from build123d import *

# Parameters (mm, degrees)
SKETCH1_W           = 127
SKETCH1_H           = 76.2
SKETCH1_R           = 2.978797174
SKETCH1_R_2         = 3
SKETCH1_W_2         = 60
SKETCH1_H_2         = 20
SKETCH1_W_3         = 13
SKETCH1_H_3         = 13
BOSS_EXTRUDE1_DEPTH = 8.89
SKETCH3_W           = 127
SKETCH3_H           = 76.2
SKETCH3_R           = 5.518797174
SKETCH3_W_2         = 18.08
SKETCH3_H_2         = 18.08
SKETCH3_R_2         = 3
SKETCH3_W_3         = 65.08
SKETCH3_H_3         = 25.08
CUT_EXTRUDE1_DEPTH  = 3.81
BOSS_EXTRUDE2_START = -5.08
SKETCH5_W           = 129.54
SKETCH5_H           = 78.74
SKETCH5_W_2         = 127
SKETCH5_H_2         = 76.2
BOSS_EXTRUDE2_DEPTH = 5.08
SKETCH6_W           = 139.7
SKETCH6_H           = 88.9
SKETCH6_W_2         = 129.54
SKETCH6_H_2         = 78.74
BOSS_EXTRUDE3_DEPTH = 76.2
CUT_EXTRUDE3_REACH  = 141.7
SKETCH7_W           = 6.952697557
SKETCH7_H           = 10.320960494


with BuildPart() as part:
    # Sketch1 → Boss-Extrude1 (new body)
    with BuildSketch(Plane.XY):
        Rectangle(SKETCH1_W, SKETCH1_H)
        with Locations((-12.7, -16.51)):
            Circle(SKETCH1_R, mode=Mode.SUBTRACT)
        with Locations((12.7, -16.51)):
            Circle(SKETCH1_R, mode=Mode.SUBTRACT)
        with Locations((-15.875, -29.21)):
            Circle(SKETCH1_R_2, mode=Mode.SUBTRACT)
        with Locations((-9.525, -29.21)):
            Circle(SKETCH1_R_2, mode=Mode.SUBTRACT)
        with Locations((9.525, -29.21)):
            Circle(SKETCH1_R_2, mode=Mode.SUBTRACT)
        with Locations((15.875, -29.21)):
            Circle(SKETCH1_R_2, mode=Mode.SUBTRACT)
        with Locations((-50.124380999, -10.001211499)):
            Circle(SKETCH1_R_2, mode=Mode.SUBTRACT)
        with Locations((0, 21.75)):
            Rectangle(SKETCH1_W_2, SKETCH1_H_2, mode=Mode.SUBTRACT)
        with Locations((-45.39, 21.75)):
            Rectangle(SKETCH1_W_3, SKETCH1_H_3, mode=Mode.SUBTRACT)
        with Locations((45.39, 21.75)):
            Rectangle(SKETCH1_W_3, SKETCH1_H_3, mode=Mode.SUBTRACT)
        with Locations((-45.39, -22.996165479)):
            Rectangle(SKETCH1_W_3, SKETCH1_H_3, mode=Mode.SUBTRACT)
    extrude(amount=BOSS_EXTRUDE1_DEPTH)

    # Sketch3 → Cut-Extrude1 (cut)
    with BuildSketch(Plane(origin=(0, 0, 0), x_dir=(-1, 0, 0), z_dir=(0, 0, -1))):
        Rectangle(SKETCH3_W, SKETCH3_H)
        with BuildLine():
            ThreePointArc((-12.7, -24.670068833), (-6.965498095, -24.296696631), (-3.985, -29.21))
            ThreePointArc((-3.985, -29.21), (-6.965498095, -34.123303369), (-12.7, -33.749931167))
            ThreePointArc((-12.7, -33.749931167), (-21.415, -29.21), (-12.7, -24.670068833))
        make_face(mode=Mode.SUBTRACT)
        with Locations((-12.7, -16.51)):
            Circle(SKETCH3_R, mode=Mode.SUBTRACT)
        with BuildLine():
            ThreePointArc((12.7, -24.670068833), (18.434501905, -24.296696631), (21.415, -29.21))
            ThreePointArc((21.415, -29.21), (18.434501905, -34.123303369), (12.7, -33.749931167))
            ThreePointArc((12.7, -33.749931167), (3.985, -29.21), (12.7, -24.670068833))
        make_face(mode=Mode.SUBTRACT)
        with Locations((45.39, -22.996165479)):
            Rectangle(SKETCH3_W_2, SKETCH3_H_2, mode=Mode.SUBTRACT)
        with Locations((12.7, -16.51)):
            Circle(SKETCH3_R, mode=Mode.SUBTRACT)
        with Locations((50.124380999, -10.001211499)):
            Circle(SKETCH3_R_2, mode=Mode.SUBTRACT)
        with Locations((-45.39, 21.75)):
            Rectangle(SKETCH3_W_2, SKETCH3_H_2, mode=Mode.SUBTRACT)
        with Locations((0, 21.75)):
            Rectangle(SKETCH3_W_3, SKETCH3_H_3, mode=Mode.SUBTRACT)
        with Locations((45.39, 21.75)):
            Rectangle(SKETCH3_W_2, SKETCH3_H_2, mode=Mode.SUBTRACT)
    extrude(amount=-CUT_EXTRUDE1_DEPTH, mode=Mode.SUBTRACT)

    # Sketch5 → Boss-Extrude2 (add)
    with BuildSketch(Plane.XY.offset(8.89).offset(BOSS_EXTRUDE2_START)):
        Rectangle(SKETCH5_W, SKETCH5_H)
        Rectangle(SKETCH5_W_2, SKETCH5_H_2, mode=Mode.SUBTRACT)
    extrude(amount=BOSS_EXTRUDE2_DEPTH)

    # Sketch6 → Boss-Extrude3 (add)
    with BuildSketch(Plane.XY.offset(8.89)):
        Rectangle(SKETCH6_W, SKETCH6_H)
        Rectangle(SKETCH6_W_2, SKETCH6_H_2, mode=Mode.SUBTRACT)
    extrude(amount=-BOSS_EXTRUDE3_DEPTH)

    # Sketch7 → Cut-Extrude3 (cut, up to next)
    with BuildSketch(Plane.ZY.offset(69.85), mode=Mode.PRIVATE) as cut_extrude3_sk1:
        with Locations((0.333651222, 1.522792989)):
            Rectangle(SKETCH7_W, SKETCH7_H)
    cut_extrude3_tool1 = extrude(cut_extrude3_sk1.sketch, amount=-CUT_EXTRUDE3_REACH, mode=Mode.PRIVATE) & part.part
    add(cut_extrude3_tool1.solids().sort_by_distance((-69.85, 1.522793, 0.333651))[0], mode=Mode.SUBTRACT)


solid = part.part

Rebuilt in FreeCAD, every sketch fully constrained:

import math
import FreeCAD as App
import Part
import Sketcher

V = App.Vector
Q = App.Units.Quantity

doc = App.newDocument("Part")
body = doc.addObject("PartDesign::Body", "Body")

sketch1 = doc.addObject("Sketcher::SketchObject", "Sketch")
body.addObject(sketch1)
sketch1.AttachmentSupport = (doc.XY_Plane, [""])
sketch1.MapMode = "FlatFace"
sketch1.addGeometry(Part.LineSegment(V(-63.5, 38.1, 0), V(-63.5, -38.1, 0)), False)
sketch1.addGeometry(Part.LineSegment(V(-63.5, -38.1, 0), V(63.5, -38.1, 0)), False)
sketch1.addGeometry(Part.LineSegment(V(63.5, -38.1, 0), V(63.5, 38.1, 0)), False)
sketch1.addGeometry(Part.LineSegment(V(63.5, 38.1, 0), V(-63.5, 38.1, 0)), False)
sketch1.addGeometry(Part.LineSegment(V(-38.89, -29.496165, 0), V(-51.89, -29.496165, 0)), False)
sketch1.addGeometry(Part.LineSegment(V(-51.89, -29.496165, 0), V(-51.89, -16.496165, 0)), False)
sketch1.addGeometry(Part.LineSegment(V(-51.89, -16.496165, 0), V(-38.89, -16.496165, 0)), False)
sketch1.addGeometry(Part.LineSegment(V(-38.89, -16.496165, 0), V(-38.89, -29.496165, 0)), False)
sketch1.addGeometry(Part.Circle(V(-15.875, -29.21, 0), V(0, 0, 1), 3), False)
sketch1.addGeometry(Part.Circle(V(-9.525, -29.21, 0), V(0, 0, 1), 3), False)
sketch1.addGeometry(Part.Circle(V(-12.7, -16.51, 0), V(0, 0, 1), 2.978797), False)
sketch1.addGeometry(Part.Circle(V(-50.124381, -10.001211, 0), V(0, 0, 1), 3), False)
sketch1.addGeometry(Part.Circle(V(9.525, -29.21, 0), V(0, 0, 1), 3), False)
sketch1.addGeometry(Part.Circle(V(15.875, -29.21, 0), V(0, 0, 1), 3), False)
sketch1.addGeometry(Part.Circle(V(12.7, -16.51, 0), V(0, 0, 1), 2.978797), False)
sketch1.addGeometry(Part.LineSegment(V(-38.89, 15.25, 0), V(-51.89, 15.25, 0)), False)
sketch1.addGeometry(Part.LineSegment(V(-51.89, 15.25, 0), V(-51.89, 28.25, 0)), False)
sketch1.addGeometry(Part.LineSegment(V(-51.89, 28.25, 0), V(-38.89, 28.25, 0)), False)
sketch1.addGeometry(Part.LineSegment(V(-38.89, 28.25, 0), V(-38.89, 15.25, 0)), False)
sketch1.addGeometry(Part.LineSegment(V(30, 11.75, 0), V(-30, 11.75, 0)), False)
sketch1.addGeometry(Part.LineSegment(V(-30, 11.75, 0), V(-30, 31.75, 0)), False)
sketch1.addGeometry(Part.LineSegment(V(-30, 31.75, 0), V(30, 31.75, 0)), False)
sketch1.addGeometry(Part.LineSegment(V(30, 31.75, 0), V(30, 11.75, 0)), False)
sketch1.addGeometry(Part.LineSegment(V(51.89, 15.25, 0), V(38.89, 15.25, 0)), False)
sketch1.addGeometry(Part.LineSegment(V(38.89, 15.25, 0), V(38.89, 28.25, 0)), False)
sketch1.addGeometry(Part.LineSegment(V(38.89, 28.25, 0), V(51.89, 28.25, 0)), False)
sketch1.addGeometry(Part.LineSegment(V(51.89, 28.25, 0), V(51.89, 15.25, 0)), False)
sketch1.addConstraint(Sketcher.Constraint("Coincident", 0, 2, 1, 1))
sketch1.addConstraint(Sketcher.Constraint("Coincident", 1, 2, 2, 1))
sketch1.addConstraint(Sketcher.Constraint("Coincident", 2, 2, 3, 1))
sketch1.addConstraint(Sketcher.Constraint("Coincident", 3, 2, 0, 1))
sketch1.addConstraint(Sketcher.Constraint("Coincident", 4, 2, 5, 1))
sketch1.addConstraint(Sketcher.Constraint("Coincident", 5, 2, 6, 1))
sketch1.addConstraint(Sketcher.Constraint("Coincident", 6, 2, 7, 1))
sketch1.addConstraint(Sketcher.Constraint("Coincident", 7, 2, 4, 1))
sketch1.addConstraint(Sketcher.Constraint("Coincident", 15, 2, 16, 1))
sketch1.addConstraint(Sketcher.Constraint("Coincident", 16, 2, 17, 1))
sketch1.addConstraint(Sketcher.Constraint("Coincident", 17, 2, 18, 1))
sketch1.addConstraint(Sketcher.Constraint("Coincident", 18, 2, 15, 1))
sketch1.addConstraint(Sketcher.Constraint("Coincident", 19, 2, 20, 1))
sketch1.addConstraint(Sketcher.Constraint("Coincident", 20, 2, 21, 1))
sketch1.addConstraint(Sketcher.Constraint("Coincident", 21, 2, 22, 1))
sketch1.addConstraint(Sketcher.Constraint("Coincident", 22, 2, 19, 1))
sketch1.addConstraint(Sketcher.Constraint("Coincident", 23, 2, 24, 1))
sketch1.addConstraint(Sketcher.Constraint("Coincident", 24, 2, 25, 1))
sketch1.addConstraint(Sketcher.Constraint("Coincident", 25, 2, 26, 1))
sketch1.addConstraint(Sketcher.Constraint("Coincident", 26, 2, 23, 1))
sketch1.addConstraint(Sketcher.Constraint("Vertical", 0))
sketch1.addConstraint(Sketcher.Constraint("Horizontal", 1))
sketch1.addConstraint(Sketcher.Constraint("Vertical", 2))
sketch1.addConstraint(Sketcher.Constraint("Horizontal", 3))
sketch1.addConstraint(Sketcher.Constraint("Horizontal", 4))
sketch1.addConstraint(Sketcher.Constraint("Vertical", 5))
sketch1.addConstraint(Sketcher.Constraint("Horizontal", 6))
sketch1.addConstraint(Sketcher.Constraint("Vertical", 7))
sketch1.addConstraint(Sketcher.Constraint("Horizontal", 15))
sketch1.addConstraint(Sketcher.Constraint("Vertical", 16))
sketch1.addConstraint(Sketcher.Constraint("Horizontal", 17))
sketch1.addConstraint(Sketcher.Constraint("Vertical", 18))
sketch1.addConstraint(Sketcher.Constraint("Horizontal", 19))
sketch1.addConstraint(Sketcher.Constraint("Vertical", 20))
sketch1.addConstraint(Sketcher.Constraint("Horizontal", 21))
sketch1.addConstraint(Sketcher.Constraint("Vertical", 22))
sketch1.addConstraint(Sketcher.Constraint("Horizontal", 23))
sketch1.addConstraint(Sketcher.Constraint("Vertical", 24))
sketch1.addConstraint(Sketcher.Constraint("Horizontal", 25))
sketch1.addConstraint(Sketcher.Constraint("Vertical", 26))
sketch1.addConstraint(Sketcher.Constraint("Equal", 8, 9))
sketch1.addConstraint(Sketcher.Constraint("Equal", 9, 11))
sketch1.addConstraint(Sketcher.Constraint("Equal", 11, 12))
sketch1.addConstraint(Sketcher.Constraint("Equal", 12, 13))
sketch1.addConstraint(Sketcher.Constraint("Equal", 10, 14))
sketch1.addConstraint(Sketcher.Constraint("Symmetric", 0, 2, 2, 2, -1, 1))
sketch1.addConstraint(Sketcher.Constraint("Symmetric", 9, 3, 12, 3, -2))
sketch1.addConstraint(Sketcher.Constraint("Symmetric", 8, 3, 13, 3, -2))
sketch1.addConstraint(Sketcher.Constraint("Symmetric", 10, 3, 14, 3, -2))
sketch1.addConstraint(Sketcher.Constraint("Symmetric", 18, 2, 23, 2, -2))
sketch1.addConstraint(Sketcher.Constraint("Symmetric", 16, 2, 25, 2, -2))
sketch1.addConstraint(Sketcher.Constraint("Horizontal", 8, 3, 9, 3))
sketch1.addConstraint(Sketcher.Constraint("Vertical", 5, 2, 15, 2))
sketch1.addConstraint(Sketcher.Constraint("Vertical", 7, 2, 17, 2))
sketch1.addConstraint(Sketcher.Constraint("Equal", 25, 5))
sketch1.addConstraint(Sketcher.Constraint("Equal", 7, 16))
sketch1.addConstraint(Sketcher.Constraint("DistanceX", 1, 1, 1, 2, Q("5 in")))
sketch1.addConstraint(Sketcher.Constraint("DistanceY", 0, 2, 0, 1, Q("3 in")))
sketch1.addConstraint(Sketcher.Constraint("DistanceX", 8, 3, 12, 3, Q("1 in")))
sketch1.addConstraint(Sketcher.Constraint("DistanceX", 10, 3, 14, 3, Q("1 in")))
sketch1.addConstraint(Sketcher.Constraint("DistanceY", 8, 3, 10, 3, Q("0.5 in")))
sketch1.addConstraint(Sketcher.Constraint("DistanceY", 14, 3, 21, 2, Q("1.9 in")))
sketch1.addConstraint(Sketcher.Constraint("Diameter", 8, 6.0))
sketch1.addConstraint(Sketcher.Constraint("DistanceY", 8, 3, -1, 1, Q("1.15 in")))
sketch1.addConstraint(Sketcher.Constraint("DistanceX", 8, 3, 9, 3, Q("0.25 in")))
sketch1.addConstraint(Sketcher.Constraint("DistanceX", 18, 2, 19, 2, Q("0.35 in")))
sketch1.addConstraint(Sketcher.Constraint("DistanceX", 22, 2, 23, 2, Q("0.35 in")))
sketch1.addConstraint(Sketcher.Constraint("Diameter", 10, 5.957594))
sketch1.addConstraint(Sketcher.Constraint("DistanceX", 4, 2, 4, 1, 13.0))
sketch1.addConstraint(Sketcher.Constraint("DistanceX", 19, 2, 19, 1, 60.0))
sketch1.addConstraint(Sketcher.Constraint("DistanceY", 20, 1, 20, 2, 20.0))
sketch1.addConstraint(Sketcher.Constraint("DistanceY", -1, 1, 15, 2, 15.25))
sketch1.addConstraint(Sketcher.Constraint("DistanceX", 11, 3, -1, 1, 50.124381))
sketch1.addConstraint(Sketcher.Constraint("DistanceY", 11, 3, -1, 1, 10.001211))
sketch1.addConstraint(Sketcher.Constraint("DistanceY", 4, 2, -1, 1, 29.496165))
pad1 = doc.addObject("PartDesign::Pad", "Pad")
body.addObject(pad1)
pad1.Profile = sketch1
pad1.Length = Q("0.35 in")

sketch2 = doc.addObject("Sketcher::SketchObject", "Sketch001")
body.addObject(sketch2)
sketch2.AttachmentSupport = (doc.XY_Plane, [""])
sketch2.MapMode = "FlatFace"
sketch2.addGeometry(Part.LineSegment(V(63.5, 38.1, 0), V(63.5, -38.1, 0)), False)
sketch2.addGeometry(Part.LineSegment(V(63.5, -38.1, 0), V(-63.5, -38.1, 0)), False)
sketch2.addGeometry(Part.LineSegment(V(-63.5, -38.1, 0), V(-63.5, 38.1, 0)), False)
sketch2.addGeometry(Part.LineSegment(V(-63.5, 38.1, 0), V(63.5, 38.1, 0)), False)
sketch2.addGeometry(Part.ArcOfCircle(Part.Circle(V(15.875, -29.21, 0), V(0, 0, 1), 5.54), math.radians(-124.96701), math.radians(124.96701)), False)
sketch2.addGeometry(Part.ArcOfCircle(Part.Circle(V(9.525, -29.21, 0), V(0, 0, 1), 5.54), math.radians(55.03299), math.radians(180)), False)
sketch2.addGeometry(Part.ArcOfCircle(Part.Circle(V(9.525, -29.21, 0), V(0, 0, 1), 5.54), math.radians(180), math.radians(304.96701)), False)
sketch2.addGeometry(Part.Circle(V(12.7, -16.51, 0), V(0, 0, 1), 5.518797), False)
sketch2.addGeometry(Part.ArcOfCircle(Part.Circle(V(-9.525, -29.21, 0), V(0, 0, 1), 5.54), math.radians(-124.96701), math.radians(124.96701)), False)
sketch2.addGeometry(Part.ArcOfCircle(Part.Circle(V(-15.875, -29.21, 0), V(0, 0, 1), 5.54), math.radians(55.03299), math.radians(180)), False)
sketch2.addGeometry(Part.ArcOfCircle(Part.Circle(V(-15.875, -29.21, 0), V(0, 0, 1), 5.54), math.radians(180), math.radians(304.96701)), False)
sketch2.addGeometry(Part.LineSegment(V(-54.43, -32.036165, 0), V(-36.35, -32.036165, 0)), False)
sketch2.addGeometry(Part.LineSegment(V(-36.35, -32.036165, 0), V(-36.35, -13.956165, 0)), False)
sketch2.addGeometry(Part.LineSegment(V(-36.35, -13.956165, 0), V(-54.43, -13.956165, 0)), False)
sketch2.addGeometry(Part.LineSegment(V(-54.43, -13.956165, 0), V(-54.43, -32.036165, 0)), False)
sketch2.addGeometry(Part.Circle(V(-12.7, -16.51, 0), V(0, 0, 1), 5.518797), False)
sketch2.addGeometry(Part.Circle(V(-50.124381, -10.001211, 0), V(0, 0, 1), 3), False)
sketch2.addGeometry(Part.LineSegment(V(36.35, 12.71, 0), V(54.43, 12.71, 0)), False)
sketch2.addGeometry(Part.LineSegment(V(54.43, 12.71, 0), V(54.43, 30.79, 0)), False)
sketch2.addGeometry(Part.LineSegment(V(54.43, 30.79, 0), V(36.35, 30.79, 0)), False)
sketch2.addGeometry(Part.LineSegment(V(36.35, 30.79, 0), V(36.35, 12.71, 0)), False)
sketch2.addGeometry(Part.LineSegment(V(-32.54, 9.21, 0), V(32.54, 9.21, 0)), False)
sketch2.addGeometry(Part.LineSegment(V(32.54, 9.21, 0), V(32.54, 34.29, 0)), False)
sketch2.addGeometry(Part.LineSegment(V(32.54, 34.29, 0), V(-32.54, 34.29, 0)), False)
sketch2.addGeometry(Part.LineSegment(V(-32.54, 34.29, 0), V(-32.54, 9.21, 0)), False)
sketch2.addGeometry(Part.LineSegment(V(-54.43, 12.71, 0), V(-36.35, 12.71, 0)), False)
sketch2.addGeometry(Part.LineSegment(V(-36.35, 12.71, 0), V(-36.35, 30.79, 0)), False)
sketch2.addGeometry(Part.LineSegment(V(-36.35, 30.79, 0), V(-54.43, 30.79, 0)), False)
sketch2.addGeometry(Part.LineSegment(V(-54.43, 30.79, 0), V(-54.43, 12.71, 0)), False)
sketch2.addConstraint(Sketcher.Constraint("Coincident", 0, 2, 1, 1))
sketch2.addConstraint(Sketcher.Constraint("Coincident", 1, 2, 2, 1))
sketch2.addConstraint(Sketcher.Constraint("Coincident", 2, 2, 3, 1))
sketch2.addConstraint(Sketcher.Constraint("Coincident", 3, 2, 0, 1))
sketch2.addConstraint(Sketcher.Constraint("Coincident", 4, 2, 5, 1))
sketch2.addConstraint(Sketcher.Constraint("Tangent", 5, 2, 6, 1))
sketch2.addConstraint(Sketcher.Constraint("Coincident", 6, 2, 4, 1))
sketch2.addConstraint(Sketcher.Constraint("Coincident", 8, 2, 9, 1))
sketch2.addConstraint(Sketcher.Constraint("Tangent", 9, 2, 10, 1))
sketch2.addConstraint(Sketcher.Constraint("Coincident", 10, 2, 8, 1))
sketch2.addConstraint(Sketcher.Constraint("Coincident", 11, 2, 12, 1))
sketch2.addConstraint(Sketcher.Constraint("Coincident", 12, 2, 13, 1))
sketch2.addConstraint(Sketcher.Constraint("Coincident", 13, 2, 14, 1))
sketch2.addConstraint(Sketcher.Constraint("Coincident", 14, 2, 11, 1))
sketch2.addConstraint(Sketcher.Constraint("Coincident", 17, 2, 18, 1))
sketch2.addConstraint(Sketcher.Constraint("Coincident", 18, 2, 19, 1))
sketch2.addConstraint(Sketcher.Constraint("Coincident", 19, 2, 20, 1))
sketch2.addConstraint(Sketcher.Constraint("Coincident", 20, 2, 17, 1))
sketch2.addConstraint(Sketcher.Constraint("Coincident", 21, 2, 22, 1))
sketch2.addConstraint(Sketcher.Constraint("Coincident", 22, 2, 23, 1))
sketch2.addConstraint(Sketcher.Constraint("Coincident", 23, 2, 24, 1))
sketch2.addConstraint(Sketcher.Constraint("Coincident", 24, 2, 21, 1))
sketch2.addConstraint(Sketcher.Constraint("Coincident", 25, 2, 26, 1))
sketch2.addConstraint(Sketcher.Constraint("Coincident", 26, 2, 27, 1))
sketch2.addConstraint(Sketcher.Constraint("Coincident", 27, 2, 28, 1))
sketch2.addConstraint(Sketcher.Constraint("Coincident", 28, 2, 25, 1))
sketch2.addConstraint(Sketcher.Constraint("Vertical", 0))
sketch2.addConstraint(Sketcher.Constraint("Horizontal", 1))
sketch2.addConstraint(Sketcher.Constraint("Vertical", 2))
sketch2.addConstraint(Sketcher.Constraint("Horizontal", 3))
sketch2.addConstraint(Sketcher.Constraint("Horizontal", 11))
sketch2.addConstraint(Sketcher.Constraint("Vertical", 12))
sketch2.addConstraint(Sketcher.Constraint("Horizontal", 13))
sketch2.addConstraint(Sketcher.Constraint("Vertical", 14))
sketch2.addConstraint(Sketcher.Constraint("Horizontal", 17))
sketch2.addConstraint(Sketcher.Constraint("Vertical", 18))
sketch2.addConstraint(Sketcher.Constraint("Horizontal", 19))
sketch2.addConstraint(Sketcher.Constraint("Vertical", 20))
sketch2.addConstraint(Sketcher.Constraint("Horizontal", 21))
sketch2.addConstraint(Sketcher.Constraint("Vertical", 22))
sketch2.addConstraint(Sketcher.Constraint("Horizontal", 23))
sketch2.addConstraint(Sketcher.Constraint("Vertical", 24))
sketch2.addConstraint(Sketcher.Constraint("Horizontal", 25))
sketch2.addConstraint(Sketcher.Constraint("Vertical", 26))
sketch2.addConstraint(Sketcher.Constraint("Horizontal", 27))
sketch2.addConstraint(Sketcher.Constraint("Vertical", 28))
sketch2.addConstraint(Sketcher.Constraint("Equal", 4, 5))
sketch2.addConstraint(Sketcher.Constraint("Equal", 5, 6))
sketch2.addConstraint(Sketcher.Constraint("Equal", 6, 8))
sketch2.addConstraint(Sketcher.Constraint("Equal", 8, 9))
sketch2.addConstraint(Sketcher.Constraint("Equal", 9, 10))
sketch2.addConstraint(Sketcher.Constraint("Equal", 7, 15))
sketch2.addConstraint(Sketcher.Constraint("Symmetric", 0, 2, 2, 2, -1, 1))
sketch2.addConstraint(Sketcher.Constraint("Symmetric", 5, 3, 8, 3, -2))
sketch2.addConstraint(Sketcher.Constraint("Symmetric", 4, 3, 9, 3, -2))
sketch2.addConstraint(Sketcher.Constraint("Symmetric", 7, 3, 15, 3, -2))
sketch2.addConstraint(Sketcher.Constraint("Symmetric", 20, 2, 25, 2, -2))
sketch2.addConstraint(Sketcher.Constraint("Symmetric", 18, 2, 27, 2, -2))
sketch2.addConstraint(Sketcher.Constraint("Horizontal", 4, 3, 5, 3))
sketch2.addConstraint(Sketcher.Constraint("Horizontal", 10, 3, 5, 2))
sketch2.addConstraint(Sketcher.Constraint("Horizontal", 5, 2, 9, 2))
sketch2.addConstraint(Sketcher.Constraint("Vertical", 7, 3, 4, 2))
sketch2.addConstraint(Sketcher.Constraint("Vertical", 12, 2, 25, 2))
sketch2.addConstraint(Sketcher.Constraint("Vertical", 14, 2, 27, 2))
sketch2.addConstraint(Sketcher.Constraint("Equal", 27, 12))
sketch2.addConstraint(Sketcher.Constraint("Equal", 14, 18))
sketch2.addConstraint(Sketcher.Constraint("DistanceX", 1, 2, 1, 1, Q("5 in")))
sketch2.addConstraint(Sketcher.Constraint("DistanceY", 0, 2, 0, 1, Q("3 in")))
sketch2.addConstraint(Sketcher.Constraint("DistanceX", 8, 3, 4, 3, Q("1 in")))
sketch2.addConstraint(Sketcher.Constraint("DistanceY", 15, 3, 23, 2, Q("2 in")))
sketch2.addConstraint(Sketcher.Constraint("DistanceY", 4, 3, 7, 3, Q("0.5 in")))
sketch2.addConstraint(Sketcher.Constraint("Diameter", 16, 6.0))
sketch2.addConstraint(Sketcher.Constraint("DistanceY", 4, 3, -1, 1, Q("1.15 in")))
sketch2.addConstraint(Sketcher.Constraint("Radius", 4, 5.54))
sketch2.addConstraint(Sketcher.Constraint("DistanceX", 5, 3, 4, 3, Q("0.25 in")))
sketch2.addConstraint(Sketcher.Constraint("DistanceX", 21, 2, 20, 2, Q("0.15 in")))
sketch2.addConstraint(Sketcher.Constraint("DistanceX", 12, 2, 23, 2, Q("0.15 in")))
sketch2.addConstraint(Sketcher.Constraint("Diameter", 7, 11.037594))
sketch2.addConstraint(Sketcher.Constraint("DistanceX", 11, 1, 11, 2, 18.08))
sketch2.addConstraint(Sketcher.Constraint("DistanceX", 21, 1, 21, 2, 65.08))
sketch2.addConstraint(Sketcher.Constraint("DistanceY", 22, 1, 22, 2, 25.08))
sketch2.addConstraint(Sketcher.Constraint("DistanceY", -1, 1, 17, 2, 12.71))
sketch2.addConstraint(Sketcher.Constraint("DistanceX", 16, 3, -1, 1, 50.124381))
sketch2.addConstraint(Sketcher.Constraint("DistanceY", 16, 3, -1, 1, 10.001211))
sketch2.addConstraint(Sketcher.Constraint("DistanceY", 11, 2, -1, 1, 32.036165))
pocket1 = doc.addObject("PartDesign::Pocket", "Pocket")
body.addObject(pocket1)
pocket1.Profile = sketch2
pocket1.Length = Q("0.15 in")
pocket1.Reversed = True

sketch3 = doc.addObject("Sketcher::SketchObject", "Sketch002")
body.addObject(sketch3)
sketch3.AttachmentSupport = (doc.XY_Plane, [""])
sketch3.MapMode = "FlatFace"
sketch3.AttachmentOffset = App.Placement(V(0, 0, 0.15 * 25.4), App.Rotation())
sketch3.addGeometry(Part.LineSegment(V(-64.77, 39.37, 0), V(-64.77, -39.37, 0)), False)
sketch3.addGeometry(Part.LineSegment(V(-64.77, -39.37, 0), V(64.77, -39.37, 0)), False)
sketch3.addGeometry(Part.LineSegment(V(64.77, -39.37, 0), V(64.77, 39.37, 0)), False)
sketch3.addGeometry(Part.LineSegment(V(64.77, 39.37, 0), V(-64.77, 39.37, 0)), False)
sketch3.addGeometry(Part.LineSegment(V(63.5, -38.1, 0), V(-63.5, -38.1, 0)), False)
sketch3.addGeometry(Part.LineSegment(V(-63.5, -38.1, 0), V(-63.5, 38.1, 0)), False)
sketch3.addGeometry(Part.LineSegment(V(-63.5, 38.1, 0), V(63.5, 38.1, 0)), False)
sketch3.addGeometry(Part.LineSegment(V(63.5, 38.1, 0), V(63.5, -38.1, 0)), False)
sketch3.addConstraint(Sketcher.Constraint("Coincident", 0, 2, 1, 1))
sketch3.addConstraint(Sketcher.Constraint("Coincident", 1, 2, 2, 1))
sketch3.addConstraint(Sketcher.Constraint("Coincident", 2, 2, 3, 1))
sketch3.addConstraint(Sketcher.Constraint("Coincident", 3, 2, 0, 1))
sketch3.addConstraint(Sketcher.Constraint("Coincident", 4, 2, 5, 1))
sketch3.addConstraint(Sketcher.Constraint("Coincident", 5, 2, 6, 1))
sketch3.addConstraint(Sketcher.Constraint("Coincident", 6, 2, 7, 1))
sketch3.addConstraint(Sketcher.Constraint("Coincident", 7, 2, 4, 1))
sketch3.addConstraint(Sketcher.Constraint("Vertical", 0))
sketch3.addConstraint(Sketcher.Constraint("Horizontal", 1))
sketch3.addConstraint(Sketcher.Constraint("Vertical", 2))
sketch3.addConstraint(Sketcher.Constraint("Horizontal", 3))
sketch3.addConstraint(Sketcher.Constraint("Horizontal", 4))
sketch3.addConstraint(Sketcher.Constraint("Vertical", 5))
sketch3.addConstraint(Sketcher.Constraint("Horizontal", 6))
sketch3.addConstraint(Sketcher.Constraint("Vertical", 7))
sketch3.addConstraint(Sketcher.Constraint("Symmetric", 0, 2, 2, 2, -1, 1))
sketch3.addConstraint(Sketcher.Constraint("Symmetric", 4, 2, 6, 2, -1, 1))
sketch3.addConstraint(Sketcher.Constraint("DistanceX", 4, 2, 4, 1, Q("5 in")))
sketch3.addConstraint(Sketcher.Constraint("DistanceY", 5, 1, 5, 2, Q("3 in")))
sketch3.addConstraint(Sketcher.Constraint("DistanceX", 1, 1, 1, 2, Q("5.1 in")))
sketch3.addConstraint(Sketcher.Constraint("DistanceY", 0, 2, 0, 1, Q("3.1 in")))
pad2 = doc.addObject("PartDesign::Pad", "Pad001")
body.addObject(pad2)
pad2.Profile = sketch3
pad2.Length = Q("0.2 in")

sketch4 = doc.addObject("Sketcher::SketchObject", "Sketch003")
body.addObject(sketch4)
sketch4.AttachmentSupport = (doc.XY_Plane, [""])
sketch4.MapMode = "FlatFace"
sketch4.AttachmentOffset = App.Placement(V(0, 0, 0.35 * 25.4), App.Rotation())
sketch4.addGeometry(Part.LineSegment(V(-69.85, 44.45, 0), V(-69.85, -44.45, 0)), False)
sketch4.addGeometry(Part.LineSegment(V(-69.85, -44.45, 0), V(69.85, -44.45, 0)), False)
sketch4.addGeometry(Part.LineSegment(V(69.85, -44.45, 0), V(69.85, 44.45, 0)), False)
sketch4.addGeometry(Part.LineSegment(V(69.85, 44.45, 0), V(-69.85, 44.45, 0)), False)
sketch4.addGeometry(Part.LineSegment(V(64.77, -39.37, 0), V(-64.77, -39.37, 0)), False)
sketch4.addGeometry(Part.LineSegment(V(-64.77, -39.37, 0), V(-64.77, 39.37, 0)), False)
sketch4.addGeometry(Part.LineSegment(V(-64.77, 39.37, 0), V(64.77, 39.37, 0)), False)
sketch4.addGeometry(Part.LineSegment(V(64.77, 39.37, 0), V(64.77, -39.37, 0)), False)
sketch4.addConstraint(Sketcher.Constraint("Coincident", 0, 2, 1, 1))
sketch4.addConstraint(Sketcher.Constraint("Coincident", 1, 2, 2, 1))
sketch4.addConstraint(Sketcher.Constraint("Coincident", 2, 2, 3, 1))
sketch4.addConstraint(Sketcher.Constraint("Coincident", 3, 2, 0, 1))
sketch4.addConstraint(Sketcher.Constraint("Coincident", 4, 2, 5, 1))
sketch4.addConstraint(Sketcher.Constraint("Coincident", 5, 2, 6, 1))
sketch4.addConstraint(Sketcher.Constraint("Coincident", 6, 2, 7, 1))
sketch4.addConstraint(Sketcher.Constraint("Coincident", 7, 2, 4, 1))
sketch4.addConstraint(Sketcher.Constraint("Vertical", 0))
sketch4.addConstraint(Sketcher.Constraint("Horizontal", 1))
sketch4.addConstraint(Sketcher.Constraint("Vertical", 2))
sketch4.addConstraint(Sketcher.Constraint("Horizontal", 3))
sketch4.addConstraint(Sketcher.Constraint("Horizontal", 4))
sketch4.addConstraint(Sketcher.Constraint("Vertical", 5))
sketch4.addConstraint(Sketcher.Constraint("Horizontal", 6))
sketch4.addConstraint(Sketcher.Constraint("Vertical", 7))
sketch4.addConstraint(Sketcher.Constraint("Symmetric", 0, 2, 2, 2, -1, 1))
sketch4.addConstraint(Sketcher.Constraint("Symmetric", 4, 2, 6, 2, -1, 1))
sketch4.addConstraint(Sketcher.Constraint("DistanceX", 1, 1, 1, 2, Q("5.5 in")))
sketch4.addConstraint(Sketcher.Constraint("DistanceX", 4, 2, 4, 1, Q("5.1 in")))
sketch4.addConstraint(Sketcher.Constraint("DistanceY", 0, 2, 0, 1, Q("3.5 in")))
sketch4.addConstraint(Sketcher.Constraint("DistanceY", 5, 1, 5, 2, Q("3.1 in")))
pad3 = doc.addObject("PartDesign::Pad", "Pad002")
body.addObject(pad3)
pad3.Profile = sketch4
pad3.Length = Q("3 in")
pad3.Reversed = True

sketch5 = doc.addObject("Sketcher::SketchObject", "Sketch004")
body.addObject(sketch5)
sketch5.AttachmentSupport = (doc.YZ_Plane, [""])
sketch5.MapMode = "FlatFace"
sketch5.AttachmentOffset = App.Placement(V(0, 0, -2.75 * 25.4), App.Rotation())
sketch5.addGeometry(Part.LineSegment(V(6.683273, -3.142698, 0), V(-3.637687, -3.142698, 0)), False)
sketch5.addGeometry(Part.LineSegment(V(-3.637687, -3.142698, 0), V(-3.637687, 3.81, 0)), False)
sketch5.addGeometry(Part.LineSegment(V(-3.637687, 3.81, 0), V(6.683273, 3.81, 0)), False)
sketch5.addGeometry(Part.LineSegment(V(6.683273, 3.81, 0), V(6.683273, -3.142698, 0)), False)
sketch5.addConstraint(Sketcher.Constraint("Coincident", 0, 2, 1, 1))
sketch5.addConstraint(Sketcher.Constraint("Coincident", 1, 2, 2, 1))
sketch5.addConstraint(Sketcher.Constraint("Coincident", 2, 2, 3, 1))
sketch5.addConstraint(Sketcher.Constraint("Coincident", 3, 2, 0, 1))
sketch5.addConstraint(Sketcher.Constraint("Horizontal", 0))
sketch5.addConstraint(Sketcher.Constraint("Vertical", 1))
sketch5.addConstraint(Sketcher.Constraint("Horizontal", 2))
sketch5.addConstraint(Sketcher.Constraint("Vertical", 3))
sketch5.addConstraint(Sketcher.Constraint("DistanceY", -1, 1, 1, 2, Q("0.15 in")))
sketch5.addConstraint(Sketcher.Constraint("DistanceX", 0, 2, 0, 1, 10.32096))
sketch5.addConstraint(Sketcher.Constraint("DistanceY", 1, 1, 1, 2, 6.952698))
sketch5.addConstraint(Sketcher.Constraint("DistanceX", 0, 2, -1, 1, 3.637687))
pocket2 = doc.addObject("PartDesign::Pocket", "Pocket001")
body.addObject(pocket2)
pocket2.Profile = sketch5
pocket2.Type = "UpToFirst"
pocket2.Reversed = True

doc.recompute()
